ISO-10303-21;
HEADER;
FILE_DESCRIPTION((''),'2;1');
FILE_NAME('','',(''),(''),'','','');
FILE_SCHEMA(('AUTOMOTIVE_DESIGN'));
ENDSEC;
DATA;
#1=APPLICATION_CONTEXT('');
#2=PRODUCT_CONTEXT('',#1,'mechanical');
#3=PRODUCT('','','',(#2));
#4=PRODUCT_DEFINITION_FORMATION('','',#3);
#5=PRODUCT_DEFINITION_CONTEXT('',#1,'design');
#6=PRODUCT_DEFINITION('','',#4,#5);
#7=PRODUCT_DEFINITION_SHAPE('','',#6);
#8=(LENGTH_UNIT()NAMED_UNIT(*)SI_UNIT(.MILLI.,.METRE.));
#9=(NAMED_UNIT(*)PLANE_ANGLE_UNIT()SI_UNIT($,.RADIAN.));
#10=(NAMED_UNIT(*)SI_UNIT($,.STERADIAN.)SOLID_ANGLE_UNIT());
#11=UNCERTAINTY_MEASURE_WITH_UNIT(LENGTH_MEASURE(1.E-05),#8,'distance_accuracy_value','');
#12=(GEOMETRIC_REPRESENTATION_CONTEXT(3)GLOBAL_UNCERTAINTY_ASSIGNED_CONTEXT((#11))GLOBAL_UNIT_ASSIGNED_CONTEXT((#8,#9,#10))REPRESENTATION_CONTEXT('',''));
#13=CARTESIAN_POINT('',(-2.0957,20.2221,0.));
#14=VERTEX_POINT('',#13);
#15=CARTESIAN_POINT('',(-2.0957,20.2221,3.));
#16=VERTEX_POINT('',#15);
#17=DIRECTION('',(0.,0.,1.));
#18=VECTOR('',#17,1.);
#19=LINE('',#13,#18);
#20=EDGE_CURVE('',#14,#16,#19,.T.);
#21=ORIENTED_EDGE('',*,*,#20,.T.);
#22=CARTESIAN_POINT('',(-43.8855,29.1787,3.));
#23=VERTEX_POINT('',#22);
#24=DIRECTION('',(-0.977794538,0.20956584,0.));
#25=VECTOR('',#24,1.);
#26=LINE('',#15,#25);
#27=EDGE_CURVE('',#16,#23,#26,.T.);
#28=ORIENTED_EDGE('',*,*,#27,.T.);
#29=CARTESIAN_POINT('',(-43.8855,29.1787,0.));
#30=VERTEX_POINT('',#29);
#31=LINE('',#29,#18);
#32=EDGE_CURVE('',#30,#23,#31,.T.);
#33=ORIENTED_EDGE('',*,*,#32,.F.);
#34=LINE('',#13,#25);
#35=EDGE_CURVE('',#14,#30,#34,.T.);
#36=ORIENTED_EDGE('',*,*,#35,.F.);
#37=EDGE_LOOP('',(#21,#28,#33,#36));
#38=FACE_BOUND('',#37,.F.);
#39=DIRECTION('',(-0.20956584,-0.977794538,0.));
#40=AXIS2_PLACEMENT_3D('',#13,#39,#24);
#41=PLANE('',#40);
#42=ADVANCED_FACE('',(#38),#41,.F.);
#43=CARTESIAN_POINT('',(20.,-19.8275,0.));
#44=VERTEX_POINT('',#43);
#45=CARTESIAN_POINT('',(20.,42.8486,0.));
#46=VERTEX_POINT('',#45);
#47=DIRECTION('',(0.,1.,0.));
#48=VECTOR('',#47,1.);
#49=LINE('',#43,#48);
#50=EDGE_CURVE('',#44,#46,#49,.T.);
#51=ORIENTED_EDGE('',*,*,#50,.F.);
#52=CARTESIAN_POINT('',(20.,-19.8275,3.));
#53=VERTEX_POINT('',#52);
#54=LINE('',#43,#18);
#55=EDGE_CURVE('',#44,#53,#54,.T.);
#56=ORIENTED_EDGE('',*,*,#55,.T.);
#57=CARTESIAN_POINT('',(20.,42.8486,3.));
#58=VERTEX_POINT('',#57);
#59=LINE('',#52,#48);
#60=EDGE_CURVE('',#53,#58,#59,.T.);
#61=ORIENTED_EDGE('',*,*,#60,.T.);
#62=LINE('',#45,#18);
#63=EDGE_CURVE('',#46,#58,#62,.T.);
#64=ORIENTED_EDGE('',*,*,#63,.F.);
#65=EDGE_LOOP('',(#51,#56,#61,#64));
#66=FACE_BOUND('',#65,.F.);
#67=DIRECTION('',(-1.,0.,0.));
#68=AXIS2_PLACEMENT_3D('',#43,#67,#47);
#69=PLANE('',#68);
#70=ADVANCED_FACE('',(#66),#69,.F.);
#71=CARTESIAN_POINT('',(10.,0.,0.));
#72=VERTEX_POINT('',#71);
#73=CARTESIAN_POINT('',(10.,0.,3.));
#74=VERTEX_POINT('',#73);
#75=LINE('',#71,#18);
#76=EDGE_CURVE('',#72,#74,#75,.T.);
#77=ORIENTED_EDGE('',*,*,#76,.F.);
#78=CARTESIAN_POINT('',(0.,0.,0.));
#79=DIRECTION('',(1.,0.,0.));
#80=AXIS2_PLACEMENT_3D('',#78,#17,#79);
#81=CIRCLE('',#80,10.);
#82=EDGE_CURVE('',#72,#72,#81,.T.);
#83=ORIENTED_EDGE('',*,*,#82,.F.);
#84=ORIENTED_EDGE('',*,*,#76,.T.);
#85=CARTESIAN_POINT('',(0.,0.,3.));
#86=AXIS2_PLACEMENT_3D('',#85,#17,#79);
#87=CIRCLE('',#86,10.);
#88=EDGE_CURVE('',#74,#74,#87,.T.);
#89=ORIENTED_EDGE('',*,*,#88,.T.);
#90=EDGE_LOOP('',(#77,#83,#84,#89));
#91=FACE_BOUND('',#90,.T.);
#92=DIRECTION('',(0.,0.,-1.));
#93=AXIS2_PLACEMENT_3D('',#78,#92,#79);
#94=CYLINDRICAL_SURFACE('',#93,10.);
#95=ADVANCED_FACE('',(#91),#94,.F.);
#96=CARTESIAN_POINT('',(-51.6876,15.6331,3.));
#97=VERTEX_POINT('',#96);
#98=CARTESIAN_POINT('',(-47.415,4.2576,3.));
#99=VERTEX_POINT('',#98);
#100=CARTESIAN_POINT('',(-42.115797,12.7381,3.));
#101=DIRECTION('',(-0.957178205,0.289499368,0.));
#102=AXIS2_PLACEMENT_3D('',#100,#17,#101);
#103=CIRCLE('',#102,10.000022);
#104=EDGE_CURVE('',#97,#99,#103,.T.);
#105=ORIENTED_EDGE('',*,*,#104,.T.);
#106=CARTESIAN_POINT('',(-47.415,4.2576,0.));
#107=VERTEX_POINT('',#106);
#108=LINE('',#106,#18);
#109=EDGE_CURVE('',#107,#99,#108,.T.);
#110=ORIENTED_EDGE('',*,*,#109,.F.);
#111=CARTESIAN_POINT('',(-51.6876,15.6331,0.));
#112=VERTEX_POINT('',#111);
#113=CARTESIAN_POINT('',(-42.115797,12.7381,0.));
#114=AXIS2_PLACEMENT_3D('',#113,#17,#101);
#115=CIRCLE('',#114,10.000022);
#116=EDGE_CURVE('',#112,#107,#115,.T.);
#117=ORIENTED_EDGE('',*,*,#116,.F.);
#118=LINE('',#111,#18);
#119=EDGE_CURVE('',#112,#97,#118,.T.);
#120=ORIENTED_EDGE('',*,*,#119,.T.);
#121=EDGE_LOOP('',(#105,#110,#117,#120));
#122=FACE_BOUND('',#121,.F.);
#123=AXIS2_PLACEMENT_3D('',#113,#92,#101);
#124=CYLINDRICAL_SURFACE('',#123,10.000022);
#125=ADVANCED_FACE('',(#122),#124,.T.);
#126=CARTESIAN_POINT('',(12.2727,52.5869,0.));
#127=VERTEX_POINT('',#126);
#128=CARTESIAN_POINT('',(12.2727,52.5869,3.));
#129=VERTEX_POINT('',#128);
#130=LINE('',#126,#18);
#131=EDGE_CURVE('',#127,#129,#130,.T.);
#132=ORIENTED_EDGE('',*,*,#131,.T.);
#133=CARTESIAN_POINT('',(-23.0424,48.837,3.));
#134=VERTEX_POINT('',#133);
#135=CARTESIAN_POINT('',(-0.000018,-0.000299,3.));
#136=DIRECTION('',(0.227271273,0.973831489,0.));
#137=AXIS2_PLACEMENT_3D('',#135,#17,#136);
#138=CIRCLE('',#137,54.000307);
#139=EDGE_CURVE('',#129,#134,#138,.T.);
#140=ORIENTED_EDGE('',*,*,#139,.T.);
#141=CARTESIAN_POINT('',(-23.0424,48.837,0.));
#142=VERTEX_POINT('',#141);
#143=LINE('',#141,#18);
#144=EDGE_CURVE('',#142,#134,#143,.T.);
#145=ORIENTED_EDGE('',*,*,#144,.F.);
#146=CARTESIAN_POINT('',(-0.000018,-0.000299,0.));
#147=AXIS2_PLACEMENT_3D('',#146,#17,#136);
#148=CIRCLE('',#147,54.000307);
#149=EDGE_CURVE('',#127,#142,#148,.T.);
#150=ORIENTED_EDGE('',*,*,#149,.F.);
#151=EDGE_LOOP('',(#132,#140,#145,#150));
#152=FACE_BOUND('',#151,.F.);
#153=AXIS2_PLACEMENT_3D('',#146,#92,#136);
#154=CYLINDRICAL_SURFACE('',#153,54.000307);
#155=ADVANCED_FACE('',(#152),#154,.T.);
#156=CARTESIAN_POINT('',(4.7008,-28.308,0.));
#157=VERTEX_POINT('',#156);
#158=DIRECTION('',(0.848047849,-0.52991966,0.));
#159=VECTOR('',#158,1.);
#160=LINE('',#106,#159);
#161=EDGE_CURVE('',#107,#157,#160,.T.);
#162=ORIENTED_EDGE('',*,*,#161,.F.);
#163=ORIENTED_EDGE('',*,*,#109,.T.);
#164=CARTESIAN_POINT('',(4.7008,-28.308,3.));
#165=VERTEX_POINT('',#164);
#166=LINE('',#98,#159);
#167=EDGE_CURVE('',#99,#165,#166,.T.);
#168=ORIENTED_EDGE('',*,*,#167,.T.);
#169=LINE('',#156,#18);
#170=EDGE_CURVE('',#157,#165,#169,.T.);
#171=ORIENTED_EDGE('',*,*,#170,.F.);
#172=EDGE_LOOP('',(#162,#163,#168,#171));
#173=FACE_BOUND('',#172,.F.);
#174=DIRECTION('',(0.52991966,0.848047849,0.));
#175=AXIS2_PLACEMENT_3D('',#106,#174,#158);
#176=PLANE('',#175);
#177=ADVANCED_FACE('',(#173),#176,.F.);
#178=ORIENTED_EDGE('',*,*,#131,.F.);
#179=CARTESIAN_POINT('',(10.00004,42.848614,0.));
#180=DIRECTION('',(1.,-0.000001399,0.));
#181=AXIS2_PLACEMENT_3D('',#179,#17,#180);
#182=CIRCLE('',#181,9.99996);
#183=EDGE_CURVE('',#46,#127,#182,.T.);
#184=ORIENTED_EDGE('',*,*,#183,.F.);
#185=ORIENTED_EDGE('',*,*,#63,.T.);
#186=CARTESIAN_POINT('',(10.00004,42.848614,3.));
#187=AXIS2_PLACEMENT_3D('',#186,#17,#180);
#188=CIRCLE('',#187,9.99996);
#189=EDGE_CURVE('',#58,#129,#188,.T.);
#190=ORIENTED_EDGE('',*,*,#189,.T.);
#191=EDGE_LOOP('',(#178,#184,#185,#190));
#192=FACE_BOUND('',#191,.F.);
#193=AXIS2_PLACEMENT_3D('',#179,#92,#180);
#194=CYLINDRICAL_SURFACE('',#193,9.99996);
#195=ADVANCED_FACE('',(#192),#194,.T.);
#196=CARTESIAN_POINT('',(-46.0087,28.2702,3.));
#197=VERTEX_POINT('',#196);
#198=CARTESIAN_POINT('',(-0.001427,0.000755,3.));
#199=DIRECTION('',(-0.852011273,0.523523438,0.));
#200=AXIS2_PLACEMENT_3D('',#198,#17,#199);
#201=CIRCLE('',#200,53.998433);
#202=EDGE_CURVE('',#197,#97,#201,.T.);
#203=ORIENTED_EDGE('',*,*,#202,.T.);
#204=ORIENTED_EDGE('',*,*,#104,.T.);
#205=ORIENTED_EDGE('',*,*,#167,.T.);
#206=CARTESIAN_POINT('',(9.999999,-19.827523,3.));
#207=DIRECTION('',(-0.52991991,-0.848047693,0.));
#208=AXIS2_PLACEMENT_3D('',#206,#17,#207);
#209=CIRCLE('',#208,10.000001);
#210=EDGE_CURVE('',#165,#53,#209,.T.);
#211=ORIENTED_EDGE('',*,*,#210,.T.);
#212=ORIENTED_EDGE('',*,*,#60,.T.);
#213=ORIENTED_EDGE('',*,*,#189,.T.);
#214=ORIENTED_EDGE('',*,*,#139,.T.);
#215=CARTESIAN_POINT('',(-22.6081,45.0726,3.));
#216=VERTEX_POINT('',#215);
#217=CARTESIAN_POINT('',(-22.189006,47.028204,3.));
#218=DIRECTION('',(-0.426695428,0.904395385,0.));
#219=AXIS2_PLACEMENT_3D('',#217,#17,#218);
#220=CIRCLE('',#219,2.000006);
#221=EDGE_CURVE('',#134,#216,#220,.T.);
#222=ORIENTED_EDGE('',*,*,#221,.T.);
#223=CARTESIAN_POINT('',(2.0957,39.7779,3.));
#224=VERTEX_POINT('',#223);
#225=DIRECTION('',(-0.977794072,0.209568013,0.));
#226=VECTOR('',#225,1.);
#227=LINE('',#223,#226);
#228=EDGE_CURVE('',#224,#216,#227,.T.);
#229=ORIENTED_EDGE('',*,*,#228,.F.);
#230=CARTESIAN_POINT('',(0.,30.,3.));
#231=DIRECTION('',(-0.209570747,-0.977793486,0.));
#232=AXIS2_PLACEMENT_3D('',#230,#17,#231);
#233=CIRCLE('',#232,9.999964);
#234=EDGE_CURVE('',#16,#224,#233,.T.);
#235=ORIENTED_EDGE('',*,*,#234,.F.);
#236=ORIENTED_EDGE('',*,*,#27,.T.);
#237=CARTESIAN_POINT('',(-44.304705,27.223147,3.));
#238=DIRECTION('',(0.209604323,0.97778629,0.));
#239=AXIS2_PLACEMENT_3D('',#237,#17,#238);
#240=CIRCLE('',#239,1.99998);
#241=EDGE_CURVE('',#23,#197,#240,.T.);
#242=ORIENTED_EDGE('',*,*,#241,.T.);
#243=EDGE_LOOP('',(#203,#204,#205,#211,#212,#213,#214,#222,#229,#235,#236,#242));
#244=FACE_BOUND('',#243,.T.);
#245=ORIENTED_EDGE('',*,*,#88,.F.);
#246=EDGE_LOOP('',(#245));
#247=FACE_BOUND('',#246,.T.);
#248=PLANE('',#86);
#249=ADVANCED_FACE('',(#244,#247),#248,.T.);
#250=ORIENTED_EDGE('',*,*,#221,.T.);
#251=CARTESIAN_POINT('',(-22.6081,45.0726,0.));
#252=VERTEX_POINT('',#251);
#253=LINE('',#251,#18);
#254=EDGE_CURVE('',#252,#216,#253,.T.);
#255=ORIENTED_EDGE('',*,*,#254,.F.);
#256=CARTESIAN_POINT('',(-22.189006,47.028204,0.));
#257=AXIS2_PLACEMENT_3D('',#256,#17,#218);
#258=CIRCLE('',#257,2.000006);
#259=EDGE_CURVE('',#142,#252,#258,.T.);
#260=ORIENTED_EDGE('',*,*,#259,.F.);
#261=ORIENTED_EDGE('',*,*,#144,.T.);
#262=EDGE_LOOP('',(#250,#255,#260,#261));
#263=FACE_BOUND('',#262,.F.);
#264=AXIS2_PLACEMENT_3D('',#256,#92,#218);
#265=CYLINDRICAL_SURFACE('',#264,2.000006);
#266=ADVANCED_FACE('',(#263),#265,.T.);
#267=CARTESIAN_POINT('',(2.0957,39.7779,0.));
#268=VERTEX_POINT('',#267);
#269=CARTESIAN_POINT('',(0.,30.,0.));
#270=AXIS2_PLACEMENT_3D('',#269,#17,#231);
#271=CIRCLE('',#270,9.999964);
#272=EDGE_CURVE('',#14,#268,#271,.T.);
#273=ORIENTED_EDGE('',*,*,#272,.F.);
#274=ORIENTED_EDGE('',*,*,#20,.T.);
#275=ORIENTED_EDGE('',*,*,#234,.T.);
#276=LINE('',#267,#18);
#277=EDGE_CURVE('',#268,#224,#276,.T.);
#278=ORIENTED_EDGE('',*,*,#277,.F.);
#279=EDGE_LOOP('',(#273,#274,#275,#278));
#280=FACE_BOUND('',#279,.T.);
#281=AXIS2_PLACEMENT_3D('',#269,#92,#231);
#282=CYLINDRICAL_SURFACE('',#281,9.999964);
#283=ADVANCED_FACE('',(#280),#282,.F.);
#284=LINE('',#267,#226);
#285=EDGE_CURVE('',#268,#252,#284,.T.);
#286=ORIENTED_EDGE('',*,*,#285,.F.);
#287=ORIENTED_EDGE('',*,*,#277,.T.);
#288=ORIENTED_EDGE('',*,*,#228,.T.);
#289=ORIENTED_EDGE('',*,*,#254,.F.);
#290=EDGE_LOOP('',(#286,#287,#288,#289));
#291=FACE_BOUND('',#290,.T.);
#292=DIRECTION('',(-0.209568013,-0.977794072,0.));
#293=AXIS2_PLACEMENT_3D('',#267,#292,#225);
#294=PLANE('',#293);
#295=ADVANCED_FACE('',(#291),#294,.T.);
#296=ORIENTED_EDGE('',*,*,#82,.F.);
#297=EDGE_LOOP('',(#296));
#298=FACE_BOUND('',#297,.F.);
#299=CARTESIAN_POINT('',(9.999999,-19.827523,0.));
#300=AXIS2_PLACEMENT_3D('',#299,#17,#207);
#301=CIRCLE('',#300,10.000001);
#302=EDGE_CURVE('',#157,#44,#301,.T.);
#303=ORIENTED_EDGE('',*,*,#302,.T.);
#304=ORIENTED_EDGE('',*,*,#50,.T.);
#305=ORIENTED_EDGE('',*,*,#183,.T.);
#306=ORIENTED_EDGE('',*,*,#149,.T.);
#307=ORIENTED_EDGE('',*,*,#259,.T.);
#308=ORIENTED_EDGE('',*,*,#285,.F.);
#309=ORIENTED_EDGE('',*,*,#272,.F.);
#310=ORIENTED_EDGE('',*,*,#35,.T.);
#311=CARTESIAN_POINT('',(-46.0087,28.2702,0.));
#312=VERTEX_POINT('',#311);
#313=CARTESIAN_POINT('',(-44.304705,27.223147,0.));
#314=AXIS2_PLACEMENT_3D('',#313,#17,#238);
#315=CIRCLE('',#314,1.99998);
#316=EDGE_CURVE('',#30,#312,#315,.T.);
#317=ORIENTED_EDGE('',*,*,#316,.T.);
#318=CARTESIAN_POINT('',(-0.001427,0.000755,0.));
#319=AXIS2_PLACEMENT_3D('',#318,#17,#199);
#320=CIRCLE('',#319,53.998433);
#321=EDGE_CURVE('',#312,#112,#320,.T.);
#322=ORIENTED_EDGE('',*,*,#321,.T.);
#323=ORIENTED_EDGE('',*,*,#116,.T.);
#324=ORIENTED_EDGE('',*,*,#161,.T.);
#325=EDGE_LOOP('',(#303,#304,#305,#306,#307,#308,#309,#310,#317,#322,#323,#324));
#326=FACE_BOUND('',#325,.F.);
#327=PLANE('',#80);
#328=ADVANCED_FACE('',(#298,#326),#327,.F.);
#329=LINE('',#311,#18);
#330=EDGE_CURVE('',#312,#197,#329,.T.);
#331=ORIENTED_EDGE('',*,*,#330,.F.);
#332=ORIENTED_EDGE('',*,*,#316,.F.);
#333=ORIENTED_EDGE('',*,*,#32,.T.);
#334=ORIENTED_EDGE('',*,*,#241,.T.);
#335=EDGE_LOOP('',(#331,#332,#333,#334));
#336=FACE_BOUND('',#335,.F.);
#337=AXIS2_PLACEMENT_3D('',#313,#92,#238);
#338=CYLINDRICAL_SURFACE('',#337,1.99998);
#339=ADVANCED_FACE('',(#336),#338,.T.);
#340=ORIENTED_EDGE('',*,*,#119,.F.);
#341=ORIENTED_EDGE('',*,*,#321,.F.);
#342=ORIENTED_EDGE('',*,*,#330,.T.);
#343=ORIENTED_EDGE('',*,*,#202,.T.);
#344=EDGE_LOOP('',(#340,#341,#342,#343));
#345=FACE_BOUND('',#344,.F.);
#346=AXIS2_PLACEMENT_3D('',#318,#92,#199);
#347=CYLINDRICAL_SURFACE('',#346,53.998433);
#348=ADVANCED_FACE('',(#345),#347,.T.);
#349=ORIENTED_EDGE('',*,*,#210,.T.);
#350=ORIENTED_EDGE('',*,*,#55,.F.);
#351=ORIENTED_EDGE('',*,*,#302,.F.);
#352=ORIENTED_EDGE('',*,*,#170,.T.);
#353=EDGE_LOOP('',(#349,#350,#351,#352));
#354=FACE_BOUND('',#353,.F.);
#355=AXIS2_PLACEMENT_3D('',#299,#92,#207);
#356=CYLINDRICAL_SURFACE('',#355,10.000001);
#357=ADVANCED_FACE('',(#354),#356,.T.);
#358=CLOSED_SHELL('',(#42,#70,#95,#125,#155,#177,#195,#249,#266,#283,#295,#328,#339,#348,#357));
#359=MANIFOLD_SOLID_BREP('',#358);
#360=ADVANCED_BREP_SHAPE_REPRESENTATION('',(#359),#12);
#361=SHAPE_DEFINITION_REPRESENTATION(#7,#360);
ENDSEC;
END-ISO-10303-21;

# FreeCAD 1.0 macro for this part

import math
import FreeCAD as App
import Part
import Sketcher

V = App.Vector
Q = App.Units.Quantity

doc = App.newDocument("Part")
body = doc.addObject("PartDesign::Body", "Body")

sketch1 = body.newObject("Sketcher::SketchObject", "Sketch")
sketch1.AttachmentSupport = (doc.getObject("XY_Plane"), [""])
sketch1.MapMode = "FlatFace"
sketch1.addGeometry([
    Part.ArcOfCircle(Part.Circle(V(0, 30, 0), V(0, 0, 1), 10), math.radians(-102), math.radians(78)),
    Part.LineSegment(V(-2.1, 20.2, 0), V(-43.9, 29.2, 0)),
    Part.ArcOfCircle(Part.Circle(V(-44.3, 27.2, 0), V(0, 0, 1), 2), math.radians(78), math.radians(148)),
    Part.ArcOfCircle(Part.Circle(V(0, 0, 0), V(0, 0, 1), 54), math.radians(148.43), math.radians(163.17)),
    Part.ArcOfCircle(Part.Circle(V(-42.1, 12.7, 0), V(0, 0, 1), 10), math.radians(163), math.radians(238)),
    Part.LineSegment(V(-47.4, 4.3, 0), V(4.7, -28.3, 0)),
    Part.ArcOfCircle(Part.Circle(V(10, -19.8, 0), V(0, 0, 1), 10), math.radians(-122), math.radians(0)),
    Part.LineSegment(V(20, -19.8, 0), V(20, 42.8, 0)),
    Part.ArcOfCircle(Part.Circle(V(10, 42.8, 0), V(0, 0, 1), 10), math.radians(0), math.radians(77)),
    Part.ArcOfCircle(Part.Circle(V(0, 0, 0), V(0, 0, 1), 54), math.radians(77), math.radians(115)),
    Part.ArcOfCircle(Part.Circle(V(-22.2, 47, 0), V(0, 0, 1), 2), math.radians(115), math.radians(258)),
    Part.LineSegment(V(-22.6, 45.1, 0), V(2.1, 39.8, 0)),
    Part.Circle(V(0, 0, 0), V(0, 0, 1), 10),
], False)
sketch1.addConstraint([
    Sketcher.Constraint("Tangent", 0, 1, 1, 1),
    Sketcher.Constraint("Tangent", 1, 2, 2, 1),
    Sketcher.Constraint("Tangent", 2, 2, 3, 1),
    Sketcher.Constraint("Tangent", 3, 2, 4, 1),
    Sketcher.Constraint("Tangent", 4, 2, 5, 1),
    Sketcher.Constraint("Tangent", 5, 2, 6, 1),
    Sketcher.Constraint("Tangent", 6, 2, 7, 1),
    Sketcher.Constraint("Tangent", 7, 2, 8, 1),
    Sketcher.Constraint("Tangent", 8, 2, 9, 1),
    Sketcher.Constraint("Tangent", 9, 2, 10, 1),
    Sketcher.Constraint("Tangent", 10, 2, 11, 1),
    Sketcher.Constraint("Tangent", 11, 2, 0, 2),
    Sketcher.Constraint("Vertical", 7),
    Sketcher.Constraint("Coincident", 9, 3, -1, 1),
    Sketcher.Constraint("Coincident", 12, 3, -1, 1),
    Sketcher.Constraint("Equal", 0, 4),
    Sketcher.Constraint("Equal", 4, 6),
    Sketcher.Constraint("Equal", 6, 8),
    Sketcher.Constraint("Equal", 2, 10),
    Sketcher.Constraint("Equal", 8, 12),
    Sketcher.Constraint("PointOnObject", 0, 3, -2),
    Sketcher.Constraint("Parallel", 1, 11),
    Sketcher.Constraint("Diameter", 12, Q("20 mm")),
    Sketcher.Constraint("Radius", 2, Q("2 mm")),
    Sketcher.Constraint("Radius", 9, Q("54 mm")),
    Sketcher.Constraint("DistanceY", -1, 1, 0, 3, Q("30 mm")),
    Sketcher.Constraint("DistanceX", -1, 1, 6, 3, Q("10 mm")),
    Sketcher.Constraint("Angle", 5, Q("-32 deg")),
    Sketcher.Constraint("Radius", 3, Q("53.9984 mm")),
    Sketcher.Constraint("DistanceY", 7, 1, 7, 2, Q("62.676 mm")),
    Sketcher.Constraint("DistanceY", 4, 3, 10, 3, Q("34.29 mm")),
    Sketcher.Constraint("DistanceY", 3, 2, 2, 3, Q("11.59 mm")),
    Sketcher.Constraint("DistanceY", 5, 2, 0, 1, Q("48.53 mm")),
])
pad1 = body.newObject("PartDesign::Pad", "Pad")
pad1.Profile = sketch1
pad1.Length = 3

doc.recompute()
